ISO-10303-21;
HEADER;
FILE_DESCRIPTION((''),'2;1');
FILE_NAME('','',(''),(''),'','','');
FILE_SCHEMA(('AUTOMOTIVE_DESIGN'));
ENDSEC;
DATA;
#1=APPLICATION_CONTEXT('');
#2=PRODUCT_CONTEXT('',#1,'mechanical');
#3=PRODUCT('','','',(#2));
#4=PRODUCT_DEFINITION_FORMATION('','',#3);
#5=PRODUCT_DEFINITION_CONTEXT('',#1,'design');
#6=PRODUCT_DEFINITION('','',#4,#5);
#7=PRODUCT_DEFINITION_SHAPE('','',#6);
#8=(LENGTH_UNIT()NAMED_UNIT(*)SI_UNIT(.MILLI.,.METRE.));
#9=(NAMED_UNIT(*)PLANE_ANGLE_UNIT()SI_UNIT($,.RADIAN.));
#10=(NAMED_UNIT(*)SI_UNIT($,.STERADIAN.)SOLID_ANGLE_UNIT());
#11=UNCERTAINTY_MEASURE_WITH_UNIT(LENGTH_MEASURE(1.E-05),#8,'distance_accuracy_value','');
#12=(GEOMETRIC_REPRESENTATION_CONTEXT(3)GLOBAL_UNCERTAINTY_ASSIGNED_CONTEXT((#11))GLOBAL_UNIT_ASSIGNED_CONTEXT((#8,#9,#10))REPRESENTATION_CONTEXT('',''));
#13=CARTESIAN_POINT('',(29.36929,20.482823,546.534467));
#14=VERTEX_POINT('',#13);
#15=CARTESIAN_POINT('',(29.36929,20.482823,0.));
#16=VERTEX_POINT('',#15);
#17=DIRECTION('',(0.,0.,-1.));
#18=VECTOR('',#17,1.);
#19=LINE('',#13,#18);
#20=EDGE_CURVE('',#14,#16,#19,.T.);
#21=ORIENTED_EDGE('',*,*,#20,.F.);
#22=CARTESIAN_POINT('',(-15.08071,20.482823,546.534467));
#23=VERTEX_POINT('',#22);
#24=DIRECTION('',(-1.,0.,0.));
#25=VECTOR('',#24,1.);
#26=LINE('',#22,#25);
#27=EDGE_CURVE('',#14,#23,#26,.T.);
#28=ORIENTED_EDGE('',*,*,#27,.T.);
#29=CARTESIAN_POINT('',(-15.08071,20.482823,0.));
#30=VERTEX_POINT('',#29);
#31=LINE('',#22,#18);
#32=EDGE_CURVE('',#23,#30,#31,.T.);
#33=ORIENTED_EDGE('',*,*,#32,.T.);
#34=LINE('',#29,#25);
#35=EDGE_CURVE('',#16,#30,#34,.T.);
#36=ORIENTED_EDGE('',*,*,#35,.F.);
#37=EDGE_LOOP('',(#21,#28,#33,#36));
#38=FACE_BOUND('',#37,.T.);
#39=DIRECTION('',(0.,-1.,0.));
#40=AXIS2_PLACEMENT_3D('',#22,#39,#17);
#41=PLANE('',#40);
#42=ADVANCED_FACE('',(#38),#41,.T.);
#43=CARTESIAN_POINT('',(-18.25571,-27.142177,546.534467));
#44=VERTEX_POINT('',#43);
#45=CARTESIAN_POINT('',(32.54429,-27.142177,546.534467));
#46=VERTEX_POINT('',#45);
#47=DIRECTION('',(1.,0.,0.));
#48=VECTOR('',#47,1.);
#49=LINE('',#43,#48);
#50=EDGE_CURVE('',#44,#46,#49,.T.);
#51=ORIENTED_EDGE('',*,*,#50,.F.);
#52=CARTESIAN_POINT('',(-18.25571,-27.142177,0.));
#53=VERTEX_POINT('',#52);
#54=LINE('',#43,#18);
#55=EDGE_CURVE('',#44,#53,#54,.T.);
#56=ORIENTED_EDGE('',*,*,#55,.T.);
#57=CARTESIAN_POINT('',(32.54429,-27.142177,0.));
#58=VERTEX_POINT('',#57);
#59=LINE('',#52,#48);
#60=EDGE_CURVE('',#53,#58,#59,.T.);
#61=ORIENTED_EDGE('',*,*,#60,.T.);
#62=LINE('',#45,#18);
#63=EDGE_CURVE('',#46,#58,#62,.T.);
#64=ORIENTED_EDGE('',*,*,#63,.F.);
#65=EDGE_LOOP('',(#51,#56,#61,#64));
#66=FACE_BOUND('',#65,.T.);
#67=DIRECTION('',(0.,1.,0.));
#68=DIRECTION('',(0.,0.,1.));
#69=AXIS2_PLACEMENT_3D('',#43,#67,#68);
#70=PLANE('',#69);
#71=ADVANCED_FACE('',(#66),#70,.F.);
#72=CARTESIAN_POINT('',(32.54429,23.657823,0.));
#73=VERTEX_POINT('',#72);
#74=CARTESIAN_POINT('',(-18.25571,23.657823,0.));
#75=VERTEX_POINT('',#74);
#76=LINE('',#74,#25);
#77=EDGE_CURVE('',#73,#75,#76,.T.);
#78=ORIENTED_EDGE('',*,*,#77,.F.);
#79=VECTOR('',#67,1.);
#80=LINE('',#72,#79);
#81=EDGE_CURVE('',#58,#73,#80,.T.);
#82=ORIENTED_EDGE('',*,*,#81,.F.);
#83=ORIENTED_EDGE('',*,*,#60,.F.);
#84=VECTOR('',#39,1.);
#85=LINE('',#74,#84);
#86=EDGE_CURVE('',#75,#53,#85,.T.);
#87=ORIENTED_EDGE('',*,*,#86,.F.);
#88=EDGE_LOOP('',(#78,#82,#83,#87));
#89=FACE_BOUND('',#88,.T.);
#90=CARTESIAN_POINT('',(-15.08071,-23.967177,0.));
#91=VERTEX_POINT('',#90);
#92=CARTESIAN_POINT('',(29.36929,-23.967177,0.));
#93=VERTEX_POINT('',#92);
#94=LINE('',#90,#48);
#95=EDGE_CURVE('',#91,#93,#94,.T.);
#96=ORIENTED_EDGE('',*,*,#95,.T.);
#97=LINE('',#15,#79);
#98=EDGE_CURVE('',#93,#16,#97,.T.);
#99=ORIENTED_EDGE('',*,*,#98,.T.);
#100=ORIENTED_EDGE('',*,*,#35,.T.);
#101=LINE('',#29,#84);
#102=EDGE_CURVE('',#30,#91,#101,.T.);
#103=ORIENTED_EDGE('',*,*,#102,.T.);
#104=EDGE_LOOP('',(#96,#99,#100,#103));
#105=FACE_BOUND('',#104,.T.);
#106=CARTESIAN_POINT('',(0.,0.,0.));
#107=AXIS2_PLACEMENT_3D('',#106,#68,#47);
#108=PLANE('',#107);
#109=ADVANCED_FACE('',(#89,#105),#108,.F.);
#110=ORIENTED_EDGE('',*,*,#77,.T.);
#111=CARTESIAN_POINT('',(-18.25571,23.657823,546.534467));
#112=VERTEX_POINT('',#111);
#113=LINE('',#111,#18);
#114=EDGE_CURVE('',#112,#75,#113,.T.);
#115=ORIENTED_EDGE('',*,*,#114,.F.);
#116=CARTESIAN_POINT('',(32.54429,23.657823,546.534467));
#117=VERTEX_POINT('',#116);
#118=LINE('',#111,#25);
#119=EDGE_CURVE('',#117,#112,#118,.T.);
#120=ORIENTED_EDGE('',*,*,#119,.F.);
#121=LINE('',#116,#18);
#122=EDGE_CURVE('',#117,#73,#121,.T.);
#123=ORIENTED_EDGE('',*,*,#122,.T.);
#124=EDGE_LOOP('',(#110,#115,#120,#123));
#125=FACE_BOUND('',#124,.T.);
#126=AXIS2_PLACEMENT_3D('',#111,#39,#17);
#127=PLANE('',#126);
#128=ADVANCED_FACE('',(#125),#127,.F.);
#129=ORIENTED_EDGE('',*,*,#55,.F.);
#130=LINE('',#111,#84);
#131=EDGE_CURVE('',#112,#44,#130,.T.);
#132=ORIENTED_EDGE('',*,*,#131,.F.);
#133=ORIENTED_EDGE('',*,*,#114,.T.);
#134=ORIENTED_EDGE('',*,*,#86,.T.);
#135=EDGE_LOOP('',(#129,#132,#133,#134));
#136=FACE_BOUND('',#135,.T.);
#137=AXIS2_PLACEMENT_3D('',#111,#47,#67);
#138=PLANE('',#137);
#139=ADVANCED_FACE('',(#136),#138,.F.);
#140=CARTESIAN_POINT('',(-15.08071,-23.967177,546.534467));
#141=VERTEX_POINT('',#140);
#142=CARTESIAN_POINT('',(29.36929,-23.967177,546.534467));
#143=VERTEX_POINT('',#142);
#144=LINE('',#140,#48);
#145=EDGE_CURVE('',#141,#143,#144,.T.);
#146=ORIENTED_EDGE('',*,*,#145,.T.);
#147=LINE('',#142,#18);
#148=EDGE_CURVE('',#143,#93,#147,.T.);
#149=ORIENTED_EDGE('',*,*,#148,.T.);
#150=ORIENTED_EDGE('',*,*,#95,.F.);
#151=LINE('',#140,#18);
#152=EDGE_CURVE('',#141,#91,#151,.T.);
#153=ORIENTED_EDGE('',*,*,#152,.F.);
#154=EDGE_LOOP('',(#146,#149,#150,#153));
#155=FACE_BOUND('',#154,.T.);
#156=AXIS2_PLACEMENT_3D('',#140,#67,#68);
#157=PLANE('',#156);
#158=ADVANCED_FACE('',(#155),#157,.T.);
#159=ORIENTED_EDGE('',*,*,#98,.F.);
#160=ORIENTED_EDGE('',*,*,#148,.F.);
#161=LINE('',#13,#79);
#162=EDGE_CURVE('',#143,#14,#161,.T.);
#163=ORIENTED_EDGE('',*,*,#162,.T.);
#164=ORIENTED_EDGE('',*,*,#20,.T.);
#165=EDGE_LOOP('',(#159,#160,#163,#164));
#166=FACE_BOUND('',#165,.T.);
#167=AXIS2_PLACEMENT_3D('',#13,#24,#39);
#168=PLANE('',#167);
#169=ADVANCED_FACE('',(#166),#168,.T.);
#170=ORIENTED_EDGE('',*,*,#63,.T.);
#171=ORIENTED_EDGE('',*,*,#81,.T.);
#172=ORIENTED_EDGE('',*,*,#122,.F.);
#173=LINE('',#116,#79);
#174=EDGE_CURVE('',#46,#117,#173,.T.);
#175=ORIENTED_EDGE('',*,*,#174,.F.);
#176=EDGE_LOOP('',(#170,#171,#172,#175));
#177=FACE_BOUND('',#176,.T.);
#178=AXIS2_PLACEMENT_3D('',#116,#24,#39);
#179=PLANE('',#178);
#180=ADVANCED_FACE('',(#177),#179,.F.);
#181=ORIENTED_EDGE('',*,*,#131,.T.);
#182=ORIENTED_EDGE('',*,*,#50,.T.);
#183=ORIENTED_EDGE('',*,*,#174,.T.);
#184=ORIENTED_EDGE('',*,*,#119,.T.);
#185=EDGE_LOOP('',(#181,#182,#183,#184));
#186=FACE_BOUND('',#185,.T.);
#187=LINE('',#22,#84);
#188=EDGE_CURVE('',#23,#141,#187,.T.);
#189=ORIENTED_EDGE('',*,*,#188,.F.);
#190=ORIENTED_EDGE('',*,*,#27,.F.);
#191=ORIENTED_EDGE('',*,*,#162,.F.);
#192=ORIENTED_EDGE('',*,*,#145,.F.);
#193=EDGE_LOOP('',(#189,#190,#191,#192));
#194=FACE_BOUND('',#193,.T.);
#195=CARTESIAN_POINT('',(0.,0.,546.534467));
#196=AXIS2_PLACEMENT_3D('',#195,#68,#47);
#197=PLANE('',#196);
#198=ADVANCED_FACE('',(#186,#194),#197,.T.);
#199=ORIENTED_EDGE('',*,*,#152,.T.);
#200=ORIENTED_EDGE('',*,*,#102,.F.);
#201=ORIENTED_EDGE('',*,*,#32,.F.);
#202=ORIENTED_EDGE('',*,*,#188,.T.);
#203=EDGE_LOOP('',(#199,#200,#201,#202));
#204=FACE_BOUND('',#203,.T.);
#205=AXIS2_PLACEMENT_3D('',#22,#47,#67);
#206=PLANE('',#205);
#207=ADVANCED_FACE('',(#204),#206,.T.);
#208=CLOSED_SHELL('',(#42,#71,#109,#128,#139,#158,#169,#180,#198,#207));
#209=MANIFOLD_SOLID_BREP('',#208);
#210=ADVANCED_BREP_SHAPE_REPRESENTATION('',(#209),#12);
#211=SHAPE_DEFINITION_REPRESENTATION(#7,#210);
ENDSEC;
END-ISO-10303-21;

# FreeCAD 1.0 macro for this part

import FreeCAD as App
import Part
import Sketcher

V = App.Vector
Q = App.Units.Quantity

doc = App.newDocument("Part")
body = doc.addObject("PartDesign::Body", "Body")

# Sketch on XY plane
sketch1 = body.newObject("Sketcher::SketchObject", "Sketch")
sketch1.AttachmentSupport = (doc.getObject("XY_Plane"), [""])
sketch1.MapMode = "FlatFace"
sketch1.addGeometry(Part.LineSegment(V(-18.25571, 23.657823, 0), V(-18.25571, -27.142177, 0)), False)
sketch1.addGeometry(Part.LineSegment(V(-18.25571, -27.142177, 0), V(32.54429, -27.142177, 0)), False)
sketch1.addGeometry(Part.LineSegment(V(32.54429, -27.142177, 0), V(32.54429, 23.657823, 0)), False)
sketch1.addGeometry(Part.LineSegment(V(32.54429, 23.657823, 0), V(-18.25571, 23.657823, 0)), False)
sketch1.addGeometry(Part.LineSegment(V(29.36929, -23.967177, 0), V(-15.08071, -23.967177, 0)), False)
sketch1.addGeometry(Part.LineSegment(V(-15.08071, -23.967177, 0), V(-15.08071, 20.482823, 0)), False)
sketch1.addGeometry(Part.LineSegment(V(-15.08071, 20.482823, 0), V(29.36929, 20.482823, 0)), False)
sketch1.addGeometry(Part.LineSegment(V(29.36929, 20.482823, 0), V(29.36929, -23.967177, 0)), False)
sketch1.addConstraint(Sketcher.Constraint("Coincident", 0, 2, 1, 1))
sketch1.addConstraint(Sketcher.Constraint("Coincident", 1, 2, 2, 1))
sketch1.addConstraint(Sketcher.Constraint("Coincident", 2, 2, 3, 1))
sketch1.addConstraint(Sketcher.Constraint("Coincident", 3, 2, 0, 1))
sketch1.addConstraint(Sketcher.Constraint("Coincident", 4, 2, 5, 1))
sketch1.addConstraint(Sketcher.Constraint("Coincident", 5, 2, 6, 1))
sketch1.addConstraint(Sketcher.Constraint("Coincident", 6, 2, 7, 1))
sketch1.addConstraint(Sketcher.Constraint("Coincident", 7, 2, 4, 1))
sketch1.addConstraint(Sketcher.Constraint("Vertical", 0))
sketch1.addConstraint(Sketcher.Constraint("Horizontal", 1))
sketch1.addConstraint(Sketcher.Constraint("Vertical", 2))
sketch1.addConstraint(Sketcher.Constraint("Horizontal", 3))
sketch1.addConstraint(Sketcher.Constraint("Horizontal", 4))
sketch1.addConstraint(Sketcher.Constraint("Vertical", 5))
sketch1.addConstraint(Sketcher.Constraint("Horizontal", 6))
sketch1.addConstraint(Sketcher.Constraint("Vertical", 7))
sketch1.addConstraint(Sketcher.Constraint("Equal", 3, 0))
sketch1.addConstraint(Sketcher.Constraint("Equal", 6, 5))
sketch1.addConstraint(Sketcher.Constraint("DistanceX", 1, 1, 1, 2, Q("2 in")))
sketch1.addConstraint(Sketcher.Constraint("DistanceX", 4, 2, 4, 1, Q("1.75 in")))
sketch1.addConstraint(Sketcher.Constraint("DistanceX", 0, 2, 4, 2, Q("0.125 in")))
sketch1.addConstraint(Sketcher.Constraint("DistanceY", 0, 2, 4, 2, Q("0.125 in")))
sketch1.addConstraint(Sketcher.Constraint("DistanceX", 0, 2, -1, 1, Q("18.25571 mm")))
sketch1.addConstraint(Sketcher.Constraint("DistanceY", 0, 2, -1, 1, Q("27.142177 mm")))
pad1 = body.newObject("PartDesign::Pad", "Pad")
pad1.Profile = sketch1
pad1.Length = 546.534467

doc.recompute()
